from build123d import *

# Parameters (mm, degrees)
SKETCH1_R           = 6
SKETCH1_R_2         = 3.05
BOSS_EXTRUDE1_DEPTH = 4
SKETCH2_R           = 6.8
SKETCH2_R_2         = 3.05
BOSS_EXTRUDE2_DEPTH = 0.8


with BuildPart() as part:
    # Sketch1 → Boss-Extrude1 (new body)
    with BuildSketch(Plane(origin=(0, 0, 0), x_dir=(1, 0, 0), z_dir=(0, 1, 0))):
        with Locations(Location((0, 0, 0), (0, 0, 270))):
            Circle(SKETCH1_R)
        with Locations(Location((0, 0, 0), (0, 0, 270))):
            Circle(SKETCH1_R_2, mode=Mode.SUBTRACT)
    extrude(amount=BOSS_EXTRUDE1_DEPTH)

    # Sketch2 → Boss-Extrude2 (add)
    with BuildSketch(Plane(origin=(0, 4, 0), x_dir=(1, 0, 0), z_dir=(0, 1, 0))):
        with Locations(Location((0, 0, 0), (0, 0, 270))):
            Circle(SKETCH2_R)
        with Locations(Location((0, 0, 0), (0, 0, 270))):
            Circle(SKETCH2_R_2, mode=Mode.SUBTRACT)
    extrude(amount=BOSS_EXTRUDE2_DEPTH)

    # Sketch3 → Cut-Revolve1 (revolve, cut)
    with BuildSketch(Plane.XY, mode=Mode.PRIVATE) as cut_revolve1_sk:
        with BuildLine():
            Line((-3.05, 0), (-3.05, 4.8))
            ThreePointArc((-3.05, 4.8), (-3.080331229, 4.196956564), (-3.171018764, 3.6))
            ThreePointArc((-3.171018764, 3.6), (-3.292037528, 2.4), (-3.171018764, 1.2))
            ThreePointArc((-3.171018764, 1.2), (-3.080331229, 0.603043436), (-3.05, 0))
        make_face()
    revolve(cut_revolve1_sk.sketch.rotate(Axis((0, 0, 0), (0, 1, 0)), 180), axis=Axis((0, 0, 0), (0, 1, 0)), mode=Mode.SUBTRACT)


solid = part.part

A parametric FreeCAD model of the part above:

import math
import FreeCAD as App
import Part
import Sketcher

doc = App.newDocument("Part")
body = doc.addObject("PartDesign::Body", "Body")

sketch1 = body.newObject("Sketcher::SketchObject", "Sketch")
sketch1.AttachmentSupport = (doc.getObject("XZ_Plane"), [""])
sketch1.MapMode = "FlatFace"
sketch1.addGeometry([
    Part.Circle(App.Vector(0, 0, 0), App.Vector(0, 0, 1), 6),
    Part.Circle(App.Vector(0, 0, 0), App.Vector(0, 0, 1), 3),
], False)
sketch1.addConstraint([
    Sketcher.Constraint("Coincident", 0, 3, -1, 1),
    Sketcher.Constraint("Coincident", 1, 3, -1, 1),
    Sketcher.Constraint("Diameter", 0, 12.0),
    Sketcher.Constraint("Diameter", 1, 6.1),
])
pad1 = body.newObject("PartDesign::Pad", "Pad")
pad1.Profile = sketch1
pad1.Length = 4
pad1.Reversed = True

sketch2 = body.newObject("Sketcher::SketchObject", "Sketch001")
sketch2.AttachmentSupport = (doc.getObject("XZ_Plane"), [""])
sketch2.MapMode = "FlatFace"
sketch2.AttachmentOffset = App.Placement(App.Vector(0, 0, -4), App.Rotation())
sketch2.addGeometry([
    Part.Circle(App.Vector(0, 0, 0), App.Vector(0, 0, 1), 6.8),
    Part.Circle(App.Vector(0, 0, 0), App.Vector(0, 0, 1), 3),
], False)
sketch2.addConstraint([
    Sketcher.Constraint("Coincident", 0, 3, -1, 1),
    Sketcher.Constraint("Coincident", 1, 3, -1, 1),
    Sketcher.Constraint("Diameter", 0, 13.6),
    Sketcher.Constraint("Diameter", 1, 6.1),
])
pad2 = body.newObject("PartDesign::Pad", "Pad001")
pad2.Profile = sketch2
pad2.Length = 0.8
pad2.Reversed = True

sketch3 = body.newObject("Sketcher::SketchObject", "Sketch002")
sketch3.AttachmentSupport = (doc.getObject("XY_Plane"), [""])
sketch3.MapMode = "FlatFace"
sketch3.addGeometry([
    Part.LineSegment(App.Vector(-3, 0, 0), App.Vector(-3, 4.8, 0)),
    Part.ArcOfCircle(Part.Circle(App.Vector(-9.1, 4.8, 0), App.Vector(0, 0, 1), 6), math.radians(-11.52), math.radians(0)),
    Part.ArcOfCircle(Part.Circle(App.Vector(2.7, 2.4, 0), App.Vector(0, 0, 1), 6), math.radians(168), math.radians(192)),
    Part.ArcOfCircle(Part.Circle(App.Vector(-9.1, 0, 0), App.Vector(0, 0, 1), 6), math.radians(0), math.radians(11.52)),
], False)
sketch3.addConstraint([
    Sketcher.Constraint("Tangent", 0, 2, 1, 2),
    Sketcher.Constraint("Tangent", 1, 1, 2, 1),
    Sketcher.Constraint("Tangent", 2, 2, 3, 2),
    Sketcher.Constraint("Tangent", 3, 1, 0, 1),
    Sketcher.Constraint("Vertical", 0),
    Sketcher.Constraint("Equal", 1, 2),
    Sketcher.Constraint("Equal", 2, 3),
    Sketcher.Constraint("PointOnObject", 3, 3, -1),
    Sketcher.Constraint("Radius", 1, 6.01),
    Sketcher.Constraint("DistanceY", 0, 1, 0, 2, 4.8),
    Sketcher.Constraint("DistanceX", 1, 3, -1, 1, 9.06),
])
groove = body.newObject("PartDesign::Groove", "Groove")
groove.Profile = sketch3
groove.ReferenceAxis = (sketch3, ["V_Axis"])
groove.Angle = 360

doc.recompute()
